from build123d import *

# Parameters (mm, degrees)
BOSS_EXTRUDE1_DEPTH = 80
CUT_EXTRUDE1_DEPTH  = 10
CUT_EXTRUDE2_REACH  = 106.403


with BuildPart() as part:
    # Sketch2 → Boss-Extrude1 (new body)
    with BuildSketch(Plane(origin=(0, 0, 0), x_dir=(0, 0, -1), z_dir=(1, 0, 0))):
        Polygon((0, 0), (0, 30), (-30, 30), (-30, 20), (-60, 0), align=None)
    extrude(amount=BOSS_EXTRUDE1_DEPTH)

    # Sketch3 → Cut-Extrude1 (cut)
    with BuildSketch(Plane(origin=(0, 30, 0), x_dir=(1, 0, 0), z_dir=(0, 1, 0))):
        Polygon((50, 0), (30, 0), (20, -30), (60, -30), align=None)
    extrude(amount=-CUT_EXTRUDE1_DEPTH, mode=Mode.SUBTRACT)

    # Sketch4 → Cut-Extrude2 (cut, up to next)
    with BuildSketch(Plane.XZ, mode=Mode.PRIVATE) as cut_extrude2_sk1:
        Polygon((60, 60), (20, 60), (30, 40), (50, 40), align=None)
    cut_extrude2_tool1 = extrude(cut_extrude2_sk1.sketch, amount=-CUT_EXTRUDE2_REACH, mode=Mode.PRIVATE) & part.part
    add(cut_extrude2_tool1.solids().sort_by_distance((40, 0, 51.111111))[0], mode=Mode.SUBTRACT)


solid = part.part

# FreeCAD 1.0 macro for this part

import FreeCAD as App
import Part
import Sketcher

doc = App.newDocument("Part")
body = doc.addObject("PartDesign::Body", "Body")

# Sketch on YZ plane
sketch1 = doc.addObject("Sketcher::SketchObject", "Sketch")
body.addObject(sketch1)
sketch1.AttachmentSupport = (doc.YZ_Plane, [""])
sketch1.MapMode = "FlatFace"
sketch1.addGeometry([
    Part.LineSegment(App.Vector(0, 0, 0), App.Vector(30, 0, 0)),  # 0
    Part.LineSegment(App.Vector(30, 0, 0), App.Vector(30, 30, 0)),  # 1
    Part.LineSegment(App.Vector(30, 30, 0), App.Vector(20, 30, 0)),  # 2
    Part.LineSegment(App.Vector(20, 30, 0), App.Vector(0, 60, 0)),  # 3
    Part.LineSegment(App.Vector(0, 60, 0), App.Vector(0, 0, 0)),  # 4
], False)
sketch1.addConstraint([
    Sketcher.Constraint("Coincident", 0, 2, 1, 1),
    Sketcher.Constraint("Coincident", 1, 2, 2, 1),
    Sketcher.Constraint("Coincident", 2, 2, 3, 1),
    Sketcher.Constraint("Coincident", 3, 2, 4, 1),
    Sketcher.Constraint("Coincident", 4, 2, 0, 1),
    Sketcher.Constraint("Horizontal", 0),
    Sketcher.Constraint("Vertical", 1),
    Sketcher.Constraint("Horizontal", 2),
    Sketcher.Constraint("Vertical", 4),
    Sketcher.Constraint("Coincident", 4, 2, -1, 1),
    Sketcher.Constraint("Equal", 0, 1),
    Sketcher.Constraint("DistanceX", 0, 1, 0, 2, 30.0),
    Sketcher.Constraint("DistanceX", 2, 2, 2, 1, 10.0),
    Sketcher.Constraint("DistanceY", 4, 2, 4, 1, 60.0),
])
pad1 = doc.addObject("PartDesign::Pad", "Pad")
body.addObject(pad1)
pad1.Profile = sketch1
pad1.Length = 80

# Sketch on XZ plane
sketch2 = doc.addObject("Sketcher::SketchObject", "Sketch001")
body.addObject(sketch2)
sketch2.AttachmentSupport = (doc.XZ_Plane, [""])
sketch2.MapMode = "FlatFace"
sketch2.AttachmentOffset = App.Placement(App.Vector(0, 0, -30), App.Rotation())
sketch2.addGeometry([
    Part.LineSegment(App.Vector(50, 0, 0), App.Vector(30, 0, 0)),
    Part.LineSegment(App.Vector(30, 0, 0), App.Vector(20, 30, 0)),
    Part.LineSegment(App.Vector(20, 30, 0), App.Vector(60, 30, 0)),
    Part.LineSegment(App.Vector(60, 30, 0), App.Vector(50, 0, 0)),
], False)
sketch2.addConstraint([
    Sketcher.Constraint("Coincident", 0, 2, 1, 1),
    Sketcher.Constraint("Coincident", 1, 2, 2, 1),
    Sketcher.Constraint("Coincident", 2, 2, 3, 1),
    Sketcher.Constraint("Coincident", 3, 2, 0, 1),
    Sketcher.Constraint("Horizontal", 0),
    Sketcher.Constraint("Horizontal", 2),
    Sketcher.Constraint("PointOnObject", 0, 2, -1),
    Sketcher.Constraint("Equal", 1, 3),
    Sketcher.Constraint("DistanceX", 0, 2, 0, 1, 20.0),
    Sketcher.Constraint("DistanceX", 2, 1, 2, 2, 40.0),
    Sketcher.Constraint("DistanceX", -1, 1, 0, 2, 30.0),
    Sketcher.Constraint("DistanceY", -1, 1, 1, 2, 30.0),
])
pocket1 = doc.addObject("PartDesign::Pocket", "Pocket")
body.addObject(pocket1)
pocket1.Profile = sketch2
pocket1.Length = 10
pocket1.Reversed = True

# Sketch on XZ plane
sketch3 = doc.addObject("Sketcher::SketchObject", "Sketch002")
body.addObject(sketch3)
sketch3.AttachmentSupport = (doc.XZ_Plane, [""])
sketch3.MapMode = "FlatFace"
sketch3.addGeometry([
    Part.LineSegment(App.Vector(60, 60, 0), App.Vector(20, 60, 0)),
    Part.LineSegment(App.Vector(20, 60, 0), App.Vector(30, 40, 0)),
    Part.LineSegment(App.Vector(30, 40, 0), App.Vector(50, 40, 0)),
    Part.LineSegment(App.Vector(50, 40, 0), App.Vector(60, 60, 0)),
], False)
sketch3.addConstraint([
    Sketcher.Constraint("Coincident", 0, 2, 1, 1),
    Sketcher.Constraint("Coincident", 1, 2, 2, 1),
    Sketcher.Constraint("Coincident", 2, 2, 3, 1),
    Sketcher.Constraint("Coincident", 3, 2, 0, 1),
    Sketcher.Constraint("Horizontal", 0),
    Sketcher.Constraint("Horizontal", 2),
    Sketcher.Constraint("Equal", 1, 3),
    Sketcher.Constraint("DistanceX", 0, 2, 0, 1, 40.0),
    Sketcher.Constraint("DistanceX", 2, 1, 2, 2, 20.0),
    Sketcher.Constraint("DistanceX", -1, 1, 0, 2, 20.0),
    Sketcher.Constraint("DistanceY", -1, 1, 0, 2, 60.0),
    Sketcher.Constraint("DistanceY", -1, 1, 1, 2, 40.0),
])
pocket2 = doc.addObject("PartDesign::Pocket", "Pocket001")
body.addObject(pocket2)
pocket2.Profile = sketch3
pocket2.Length = 13.333333

doc.recompute()
